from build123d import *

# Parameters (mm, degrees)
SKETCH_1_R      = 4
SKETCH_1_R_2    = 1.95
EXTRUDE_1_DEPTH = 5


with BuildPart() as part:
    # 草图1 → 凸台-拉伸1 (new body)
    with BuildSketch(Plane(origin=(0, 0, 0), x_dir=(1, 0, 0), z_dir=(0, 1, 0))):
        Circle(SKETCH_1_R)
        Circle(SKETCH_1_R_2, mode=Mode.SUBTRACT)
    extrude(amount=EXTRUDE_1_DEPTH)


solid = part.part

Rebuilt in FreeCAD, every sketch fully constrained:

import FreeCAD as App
import Part
import Sketcher
Q = App.Units.Quantity

doc = App.newDocument("Part")
body = doc.addObject("PartDesign::Body", "Body")

# Sketch on XZ plane
sketch1 = body.newObject("Sketcher::SketchObject", "Sketch")
sketch1.AttachmentSupport = (doc.getObject("XZ_Plane"), [""])
sketch1.MapMode = "FlatFace"
sketch1.addGeometry([
    Part.Circle(App.Vector(0, 0, 0), App.Vector(0, 0, 1), 4),
    Part.Circle(App.Vector(0, 0, 0), App.Vector(0, 0, 1), 1.95),
], False)
sketch1.addConstraint([
    Sketcher.Constraint("Coincident", 0, 3, -1, 1),
    Sketcher.Constraint("Coincident", 1, 3, -1, 1),
    Sketcher.Constraint("Diameter", 0, Q("8 mm")),
    Sketcher.Constraint("Diameter", 1, Q("3.9 mm")),
])
pad1 = body.newObject("PartDesign::Pad", "Pad")
pad1.Profile = sketch1
pad1.Length = 5
pad1.Reversed = True

doc.recompute()
